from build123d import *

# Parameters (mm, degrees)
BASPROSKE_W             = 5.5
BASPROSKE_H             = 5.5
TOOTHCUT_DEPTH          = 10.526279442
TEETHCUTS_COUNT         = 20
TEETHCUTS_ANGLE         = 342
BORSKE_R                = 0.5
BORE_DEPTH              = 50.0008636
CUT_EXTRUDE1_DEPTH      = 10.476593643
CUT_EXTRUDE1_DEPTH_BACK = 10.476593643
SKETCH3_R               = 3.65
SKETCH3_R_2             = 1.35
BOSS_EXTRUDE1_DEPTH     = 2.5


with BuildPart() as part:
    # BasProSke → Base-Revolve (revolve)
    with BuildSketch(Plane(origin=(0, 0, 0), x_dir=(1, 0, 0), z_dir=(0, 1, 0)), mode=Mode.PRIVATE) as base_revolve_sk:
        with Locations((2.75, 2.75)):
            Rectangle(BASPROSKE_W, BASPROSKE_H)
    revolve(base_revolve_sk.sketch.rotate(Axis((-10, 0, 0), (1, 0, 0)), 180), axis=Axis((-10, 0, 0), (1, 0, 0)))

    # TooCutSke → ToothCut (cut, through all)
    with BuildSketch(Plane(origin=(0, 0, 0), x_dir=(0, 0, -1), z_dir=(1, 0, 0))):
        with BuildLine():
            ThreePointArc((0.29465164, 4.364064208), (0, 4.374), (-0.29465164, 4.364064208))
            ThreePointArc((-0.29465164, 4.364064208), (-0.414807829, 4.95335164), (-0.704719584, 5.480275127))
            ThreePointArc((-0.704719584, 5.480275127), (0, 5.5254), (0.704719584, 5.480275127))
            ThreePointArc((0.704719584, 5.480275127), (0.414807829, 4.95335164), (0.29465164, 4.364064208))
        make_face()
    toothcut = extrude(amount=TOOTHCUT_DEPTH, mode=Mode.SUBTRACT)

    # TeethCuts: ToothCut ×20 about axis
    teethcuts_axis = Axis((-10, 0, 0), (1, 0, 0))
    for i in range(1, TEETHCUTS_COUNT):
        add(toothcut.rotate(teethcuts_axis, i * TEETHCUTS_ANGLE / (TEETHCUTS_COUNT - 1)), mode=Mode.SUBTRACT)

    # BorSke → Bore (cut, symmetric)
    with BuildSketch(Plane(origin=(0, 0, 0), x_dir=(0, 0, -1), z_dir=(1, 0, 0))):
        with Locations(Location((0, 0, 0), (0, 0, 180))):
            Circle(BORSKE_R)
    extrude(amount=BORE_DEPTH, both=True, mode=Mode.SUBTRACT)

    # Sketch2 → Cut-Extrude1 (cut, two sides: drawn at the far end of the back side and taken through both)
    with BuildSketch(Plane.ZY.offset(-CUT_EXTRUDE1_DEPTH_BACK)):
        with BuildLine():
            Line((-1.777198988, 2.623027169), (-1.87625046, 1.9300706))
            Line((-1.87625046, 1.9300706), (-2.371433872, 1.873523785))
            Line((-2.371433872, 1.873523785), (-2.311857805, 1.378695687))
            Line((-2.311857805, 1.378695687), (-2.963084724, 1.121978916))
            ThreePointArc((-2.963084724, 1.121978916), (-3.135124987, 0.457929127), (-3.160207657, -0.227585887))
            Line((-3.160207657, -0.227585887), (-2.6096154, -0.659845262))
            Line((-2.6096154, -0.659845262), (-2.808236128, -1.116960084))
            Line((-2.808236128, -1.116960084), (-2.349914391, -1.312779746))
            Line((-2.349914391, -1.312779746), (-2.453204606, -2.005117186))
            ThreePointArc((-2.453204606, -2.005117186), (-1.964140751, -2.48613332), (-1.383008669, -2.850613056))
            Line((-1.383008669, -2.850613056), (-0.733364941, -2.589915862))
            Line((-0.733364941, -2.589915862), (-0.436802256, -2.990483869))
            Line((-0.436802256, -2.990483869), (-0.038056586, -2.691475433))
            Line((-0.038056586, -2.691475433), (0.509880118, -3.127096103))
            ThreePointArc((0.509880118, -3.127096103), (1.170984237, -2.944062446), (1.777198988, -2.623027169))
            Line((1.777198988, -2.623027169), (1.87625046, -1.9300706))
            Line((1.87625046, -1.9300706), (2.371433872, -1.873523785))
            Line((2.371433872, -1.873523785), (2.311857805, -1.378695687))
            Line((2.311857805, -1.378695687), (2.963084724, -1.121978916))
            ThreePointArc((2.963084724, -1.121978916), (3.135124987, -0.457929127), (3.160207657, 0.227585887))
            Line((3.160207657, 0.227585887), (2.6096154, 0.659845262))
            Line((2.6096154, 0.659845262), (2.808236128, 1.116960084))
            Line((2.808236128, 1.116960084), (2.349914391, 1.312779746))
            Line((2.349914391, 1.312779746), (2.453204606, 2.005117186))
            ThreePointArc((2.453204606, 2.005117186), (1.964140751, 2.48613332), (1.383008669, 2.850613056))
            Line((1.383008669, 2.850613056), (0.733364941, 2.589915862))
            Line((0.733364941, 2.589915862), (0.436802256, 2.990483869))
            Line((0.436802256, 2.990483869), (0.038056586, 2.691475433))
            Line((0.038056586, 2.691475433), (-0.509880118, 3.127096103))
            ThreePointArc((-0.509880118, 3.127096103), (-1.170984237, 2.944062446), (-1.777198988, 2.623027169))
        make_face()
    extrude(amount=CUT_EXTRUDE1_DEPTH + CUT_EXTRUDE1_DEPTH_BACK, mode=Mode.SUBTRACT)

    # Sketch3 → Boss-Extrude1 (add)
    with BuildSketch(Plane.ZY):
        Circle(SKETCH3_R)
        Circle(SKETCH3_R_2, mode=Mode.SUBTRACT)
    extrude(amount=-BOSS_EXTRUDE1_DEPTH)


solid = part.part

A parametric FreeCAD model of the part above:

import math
import FreeCAD as App
import Part
import Sketcher


def add_polygon(sketch, points):
    """Adds a closed chain of lines whose ends are joined by coincident constraints."""
    first, n = sketch.GeometryCount, len(points)
    for a, b in zip(points, points[1:] + points[:1]):
        sketch.addGeometry(Part.LineSegment(App.Vector(*a, 0), App.Vector(*b, 0)), False)
    for i in range(n):
        sketch.addConstraint(Sketcher.Constraint("Coincident", first + i, 2, first + (i + 1) % n, 1))

doc = App.newDocument("Part")
params = doc.addObject("Spreadsheet::Sheet", "Params")
for row, (alias, value) in enumerate([
    ("sketch1_width", "5.5 mm"),
    ("revolution_angle", "360 deg"),
    ("sketch2_radius", "2 mm"),
    ("sketch3_diameter", "1 mm"),
    ("pocket2_length", "100.001727 mm"),
    ("sketch4_length", "0.7 mm"),
    ("sketch5_diameter", "7.3 mm"),
    ("sketch5_diameter2", "2.7 mm"),
    ("pad1_length", "2.5 mm"),
], start=1):
    params.set(f"A{row}", alias)
    params.set(f"B{row}", "=" + value)
    params.setAlias(f"B{row}", alias)

body = doc.addObject("PartDesign::Body", "Body")

sketch1 = doc.addObject("Sketcher::SketchObject", "Sketch")
body.addObject(sketch1)
sketch1.AttachmentSupport = (doc.XZ_Plane, [""])
sketch1.MapMode = "FlatFace"
add_polygon(sketch1, [(0, -6), (0, 0), (6, 0), (6, -6)])
sketch1.addConstraint([
    Sketcher.Constraint("Vertical", 0),
    Sketcher.Constraint("Horizontal", 1),
    Sketcher.Constraint("Vertical", 2),
    Sketcher.Constraint("Horizontal", 3),
    Sketcher.Constraint("Coincident", 0, 2, -1, 1),
    Sketcher.Constraint("Equal", 3, 0),
    Sketcher.Constraint("DistanceX", 1, 1, 1, 2, 5.5),
])
sketch1.setExpression("Constraints[10]", "Params.sketch1_width")
revolution = doc.addObject("PartDesign::Revolution", "Revolution")
body.addObject(revolution)
revolution.Profile = sketch1
revolution.ReferenceAxis = (sketch1, ["H_Axis"])
revolution.setExpression("Angle", "Params.revolution_angle")

sketch2 = doc.addObject("Sketcher::SketchObject", "Sketch001")
body.addObject(sketch2)
sketch2.AttachmentSupport = (doc.YZ_Plane, [""])
sketch2.MapMode = "FlatFace"
sketch2.addGeometry([
    Part.ArcOfCircle(Part.Circle(App.Vector(0, 0, 0), App.Vector(0, 0, 1), 4.4), math.radians(-3.86), math.radians(3.86)),
    Part.ArcOfCircle(Part.Circle(App.Vector(4.3, -2.3, 0), App.Vector(0, 0, 1), 2), math.radians(53), math.radians(87)),
    Part.ArcOfCircle(Part.Circle(App.Vector(0, 0, 0), App.Vector(0, 0, 1), 5.5), math.radians(-7.33), math.radians(7.33)),
    Part.ArcOfCircle(Part.Circle(App.Vector(4.3, 2.3, 0), App.Vector(0, 0, 1), 2), math.radians(-87), math.radians(-53)),
], False)
sketch2.addConstraint([
    Sketcher.Constraint("Coincident", 0, 1, 1, 2),
    Sketcher.Constraint("Coincident", 1, 1, 2, 1),
    Sketcher.Constraint("Coincident", 2, 2, 3, 2),
    Sketcher.Constraint("Coincident", 3, 1, 0, 2),
    Sketcher.Constraint("Coincident", 0, 3, -1, 1),
    Sketcher.Constraint("Coincident", 2, 3, -1, 1),
    Sketcher.Constraint("Equal", 1, 3),
    Sketcher.Constraint("Symmetric", 1, 3, 3, 3, -1),
    Sketcher.Constraint("Radius", 1, 2.0),
    Sketcher.Constraint("Radius", 0, 4.374),
    Sketcher.Constraint("Radius", 2, 5.5254),
    Sketcher.Constraint("DistanceX", -1, 1, 1, 3, 4.26367),
    Sketcher.Constraint("DistanceY", 1, 3, -1, 1, 2.29213),
])
sketch2.setExpression("Constraints[8]", "Params.sketch2_radius")
pocket1 = doc.addObject("PartDesign::Pocket", "Pocket")
body.addObject(pocket1)
pocket1.Profile = sketch2
pocket1.Type = "ThroughAll"
pocket1.Reversed = True
doc.recompute()

polarpattern = doc.addObject("PartDesign::PolarPattern", "PolarPattern")
body.addObject(polarpattern)
polarpattern.Originals = [pocket1]
polarpattern.Axis = (doc.X_Axis, [""])
polarpattern.Angle = 360
polarpattern.Occurrences = 20
body.Tip = polarpattern

sketch3 = doc.addObject("Sketcher::SketchObject", "Sketch002")
body.addObject(sketch3)
sketch3.AttachmentSupport = (doc.YZ_Plane, [""])
sketch3.MapMode = "FlatFace"
sketch3.addGeometry(Part.Circle(App.Vector(0, 0, 0), App.Vector(0, 0, 1), 0.5), False)
sketch3.addConstraint([
    Sketcher.Constraint("Coincident", 0, 3, -1, 1),
    Sketcher.Constraint("Diameter", 0, 1.0),
])
sketch3.setExpression("Constraints[1]", "Params.sketch3_diameter")
pocket2 = doc.addObject("PartDesign::Pocket", "Pocket001")
body.addObject(pocket2)
pocket2.Profile = sketch3
pocket2.setExpression("Length", "Params.pocket2_length")
pocket2.Midplane = True

sketch4 = doc.addObject("Sketcher::SketchObject", "Sketch003")
body.addObject(sketch4)
sketch4.AttachmentSupport = (doc.YZ_Plane, [""])
sketch4.MapMode = "FlatFace"
sketch4.addGeometry([
    Part.LineSegment(App.Vector(2.62, -1.78, 0), App.Vector(1.93, -1.88, 0)),
    Part.LineSegment(App.Vector(1.93, -1.88, 0), App.Vector(1.87, -2.37, 0)),
    Part.LineSegment(App.Vector(1.87, -2.37, 0), App.Vector(1.38, -2.31, 0)),
    Part.LineSegment(App.Vector(1.38, -2.31, 0), App.Vector(1.12, -2.96, 0)),
    Part.ArcOfCircle(Part.Circle(App.Vector(0, 0, 0), App.Vector(0, 0, 1), 3.17), math.radians(-94), math.radians(-69)),
    Part.LineSegment(App.Vector(-0.23, -3.16, 0), App.Vector(-0.66, -2.61, 0)),
    Part.LineSegment(App.Vector(-0.66, -2.61, 0), App.Vector(-1.12, -2.81, 0)),
    Part.LineSegment(App.Vector(-1.12, -2.81, 0), App.Vector(-1.31, -2.35, 0)),
    Part.LineSegment(App.Vector(-1.31, -2.35, 0), App.Vector(-2.01, -2.45, 0)),
    Part.ArcOfCircle(Part.Circle(App.Vector(0, 0, 0), App.Vector(0, 0, 1), 3.17), math.radians(-154), math.radians(-129)),
    Part.LineSegment(App.Vector(-2.85, -1.38, 0), App.Vector(-2.59, -0.73, 0)),
    Part.LineSegment(App.Vector(-2.59, -0.73, 0), App.Vector(-2.99, -0.44, 0)),
    Part.LineSegment(App.Vector(-2.99, -0.44, 0), App.Vector(-2.69, -0.04, 0)),
    Part.LineSegment(App.Vector(-2.69, -0.04, 0), App.Vector(-3.13, 0.51, 0)),
    Part.ArcOfCircle(Part.Circle(App.Vector(0, 0, 0), App.Vector(0, 0, 1), 3.17), math.radians(146), math.radians(171)),
    Part.LineSegment(App.Vector(-2.62, 1.78, 0), App.Vector(-1.93, 1.88, 0)),
    Part.LineSegment(App.Vector(-1.93, 1.88, 0), App.Vector(-1.87, 2.37, 0)),
    Part.LineSegment(App.Vector(-1.87, 2.37, 0), App.Vector(-1.38, 2.31, 0)),
    Part.LineSegment(App.Vector(-1.38, 2.31, 0), App.Vector(-1.12, 2.96, 0)),
    Part.ArcOfCircle(Part.Circle(App.Vector(0, 0, 0), App.Vector(0, 0, 1), 3.17), math.radians(86), math.radians(111)),
    Part.LineSegment(App.Vector(0.23, 3.16, 0), App.Vector(0.66, 2.61, 0)),
    Part.LineSegment(App.Vector(0.66, 2.61, 0), App.Vector(1.12, 2.81, 0)),
    Part.LineSegment(App.Vector(1.12, 2.81, 0), App.Vector(1.31, 2.35, 0)),
    Part.LineSegment(App.Vector(1.31, 2.35, 0), App.Vector(2.01, 2.45, 0)),
    Part.ArcOfCircle(Part.Circle(App.Vector(0, 0, 0), App.Vector(0, 0, 1), 3.17), math.radians(26), math.radians(51)),
    Part.LineSegment(App.Vector(2.85, 1.38, 0), App.Vector(2.59, 0.73, 0)),
    Part.LineSegment(App.Vector(2.59, 0.73, 0), App.Vector(2.99, 0.44, 0)),
    Part.LineSegment(App.Vector(2.99, 0.44, 0), App.Vector(2.69, 0.04, 0)),
    Part.LineSegment(App.Vector(2.69, 0.04, 0), App.Vector(3.13, -0.51, 0)),
    Part.ArcOfCircle(Part.Circle(App.Vector(0, 0, 0), App.Vector(0, 0, 1), 3.17), math.radians(-34), math.radians(-9)),
], False)
sketch4.addConstraint([
    Sketcher.Constraint("Coincident", 0, 2, 1, 1),
    Sketcher.Constraint("Coincident", 1, 2, 2, 1),
    Sketcher.Constraint("Coincident", 2, 2, 3, 1),
    Sketcher.Constraint("Coincident", 3, 2, 4, 2),
    Sketcher.Constraint("Coincident", 4, 1, 5, 1),
    Sketcher.Constraint("Coincident", 5, 2, 6, 1),
    Sketcher.Constraint("Coincident", 6, 2, 7, 1),
    Sketcher.Constraint("Coincident", 7, 2, 8, 1),
    Sketcher.Constraint("Coincident", 8, 2, 9, 2),
    Sketcher.Constraint("Coincident", 9, 1, 10, 1),
    Sketcher.Constraint("Coincident", 10, 2, 11, 1),
    Sketcher.Constraint("Coincident", 11, 2, 12, 1),
    Sketcher.Constraint("Coincident", 12, 2, 13, 1),
    Sketcher.Constraint("Coincident", 13, 2, 14, 2),
    Sketcher.Constraint("Coincident", 14, 1, 15, 1),
    Sketcher.Constraint("Coincident", 15, 2, 16, 1),
    Sketcher.Constraint("Coincident", 16, 2, 17, 1),
    Sketcher.Constraint("Coincident", 17, 2, 18, 1),
    Sketcher.Constraint("Coincident", 18, 2, 19, 2),
    Sketcher.Constraint("Coincident", 19, 1, 20, 1),
    Sketcher.Constraint("Coincident", 20, 2, 21, 1),
    Sketcher.Constraint("Coincident", 21, 2, 22, 1),
    Sketcher.Constraint("Coincident", 22, 2, 23, 1),
    Sketcher.Constraint("Coincident", 23, 2, 24, 2),
    Sketcher.Constraint("Coincident", 24, 1, 25, 1),
    Sketcher.Constraint("Coincident", 25, 2, 26, 1),
    Sketcher.Constraint("Coincident", 26, 2, 27, 1),
    Sketcher.Constraint("Coincident", 27, 2, 28, 1),
    Sketcher.Constraint("Coincident", 28, 2, 29, 2),
    Sketcher.Constraint("Coincident", 29, 1, 0, 1),
    Sketcher.Constraint("Coincident", 4, 3, -1, 1),
    Sketcher.Constraint("Coincident", 9, 3, -1, 1),
    Sketcher.Constraint("Coincident", 14, 3, -1, 1),
    Sketcher.Constraint("Coincident", 19, 3, -1, 1),
    Sketcher.Constraint("Coincident", 24, 3, -1, 1),
    Sketcher.Constraint("Coincident", 29, 3, -1, 1),
    Sketcher.Constraint("Equal", 4, 9),
    Sketcher.Constraint("Equal", 9, 14),
    Sketcher.Constraint("Equal", 14, 19),
    Sketcher.Constraint("Equal", 19, 24),
    Sketcher.Constraint("Equal", 24, 29),
    Sketcher.Constraint("Symmetric", 0, 2, 15, 2, -1, 1),
    Sketcher.Constraint("Symmetric", 1, 2, 16, 2, -1, 1),
    Sketcher.Constraint("Symmetric", 2, 2, 17, 2, -1, 1),
    Sketcher.Constraint("Symmetric", 5, 2, 20, 2, -1, 1),
    Sketcher.Constraint("Symmetric", 6, 2, 21, 2, -1, 1),
    Sketcher.Constraint("Symmetric", 7, 2, 22, 2, -1, 1),
    Sketcher.Constraint("Symmetric", 10, 2, 25, 2, -1, 1),
    Sketcher.Constraint("Symmetric", 11, 2, 26, 2, -1, 1),
    Sketcher.Constraint("Symmetric", 12, 2, 27, 2, -1, 1),
    Sketcher.Constraint("Parallel", 0, 15),
    Sketcher.Constraint("Parallel", 3, 18),
    Sketcher.Constraint("Parallel", 5, 20),
    Sketcher.Constraint("Parallel", 8, 23),
    Sketcher.Constraint("Parallel", 10, 25),
    Sketcher.Constraint("Parallel", 13, 28),
    Sketcher.Constraint("Equal", 1, 2),
    Sketcher.Constraint("Equal", 0, 3),
    Sketcher.Constraint("Equal", 3, 5),
    Sketcher.Constraint("Equal", 2, 6),
    Sketcher.Constraint("Equal", 6, 7),
    Sketcher.Constraint("Equal", 5, 8),
    Sketcher.Constraint("Equal", 8, 10),
    Sketcher.Constraint("Equal", 7, 11),
    Sketcher.Constraint("Equal", 11, 12),
    Sketcher.Constraint("Equal", 10, 13),
    Sketcher.Constraint("Distance", 0, 0.7),
    Sketcher.Constraint("Radius", 4, 3.168392),
    Sketcher.Constraint("DistanceY", 11, 2, 14, 1, 2.214001),
    Sketcher.Constraint("Distance", 1, 0.498402),
    Sketcher.Constraint("DistanceY", -1, 1, 14, 1, 1.777199),
    Sketcher.Constraint("DistanceY", 5, 2, 7, 2, 0.259701),
    Sketcher.Constraint("DistanceX", 10, 2, 8, 2, 0.584799),
    Sketcher.Constraint("DistanceX", 13, 2, 17, 2, 1.7484),
    Sketcher.Constraint("DistanceX", -1, 1, 0, 2, 1.930071),
    Sketcher.Constraint("DistanceX", -1, 1, 3, 2, 1.121979),
    Sketcher.Constraint("DistanceX", 6, 2, -1, 1, 1.11696),
    Sketcher.Constraint("DistanceX", 7, 2, -1, 1, 1.31278),
    Sketcher.Constraint("DistanceY", 9, 1, -1, 1, 1.383009),
    Sketcher.Constraint("DistanceY", -1, 1, 13, 2, 0.50988),
    Sketcher.Constraint("DistanceX", 4, 1, 2, 2, 1.606282),
])
sketch4.setExpression("Constraints[66]", "Params.sketch4_length")
pocket3 = doc.addObject("PartDesign::Pocket", "Pocket002")
body.addObject(pocket3)
pocket3.Profile = sketch4
pocket3.Type = "ThroughAll"
pocket3.Midplane = True

sketch5 = doc.addObject("Sketcher::SketchObject", "Sketch004")
body.addObject(sketch5)
sketch5.AttachmentSupport = (doc.YZ_Plane, [""])
sketch5.MapMode = "FlatFace"
sketch5.addGeometry([
    Part.Circle(App.Vector(0, 0, 0), App.Vector(0, 0, 1), 3.6),
    Part.Circle(App.Vector(0, 0, 0), App.Vector(0, 0, 1), 1.4),
], False)
sketch5.addConstraint([
    Sketcher.Constraint("Coincident", 0, 3, -1, 1),
    Sketcher.Constraint("Coincident", 1, 3, -1, 1),
    Sketcher.Constraint("Diameter", 0, 7.3),
    Sketcher.Constraint("Diameter", 1, 2.7),
])
sketch5.setExpression("Constraints[2]", "Params.sketch5_diameter")
sketch5.setExpression("Constraints[3]", "Params.sketch5_diameter2")
pad1 = doc.addObject("PartDesign::Pad", "Pad")
body.addObject(pad1)
pad1.Profile = sketch5
pad1.setExpression("Length", "Params.pad1_length")

doc.recompute()
